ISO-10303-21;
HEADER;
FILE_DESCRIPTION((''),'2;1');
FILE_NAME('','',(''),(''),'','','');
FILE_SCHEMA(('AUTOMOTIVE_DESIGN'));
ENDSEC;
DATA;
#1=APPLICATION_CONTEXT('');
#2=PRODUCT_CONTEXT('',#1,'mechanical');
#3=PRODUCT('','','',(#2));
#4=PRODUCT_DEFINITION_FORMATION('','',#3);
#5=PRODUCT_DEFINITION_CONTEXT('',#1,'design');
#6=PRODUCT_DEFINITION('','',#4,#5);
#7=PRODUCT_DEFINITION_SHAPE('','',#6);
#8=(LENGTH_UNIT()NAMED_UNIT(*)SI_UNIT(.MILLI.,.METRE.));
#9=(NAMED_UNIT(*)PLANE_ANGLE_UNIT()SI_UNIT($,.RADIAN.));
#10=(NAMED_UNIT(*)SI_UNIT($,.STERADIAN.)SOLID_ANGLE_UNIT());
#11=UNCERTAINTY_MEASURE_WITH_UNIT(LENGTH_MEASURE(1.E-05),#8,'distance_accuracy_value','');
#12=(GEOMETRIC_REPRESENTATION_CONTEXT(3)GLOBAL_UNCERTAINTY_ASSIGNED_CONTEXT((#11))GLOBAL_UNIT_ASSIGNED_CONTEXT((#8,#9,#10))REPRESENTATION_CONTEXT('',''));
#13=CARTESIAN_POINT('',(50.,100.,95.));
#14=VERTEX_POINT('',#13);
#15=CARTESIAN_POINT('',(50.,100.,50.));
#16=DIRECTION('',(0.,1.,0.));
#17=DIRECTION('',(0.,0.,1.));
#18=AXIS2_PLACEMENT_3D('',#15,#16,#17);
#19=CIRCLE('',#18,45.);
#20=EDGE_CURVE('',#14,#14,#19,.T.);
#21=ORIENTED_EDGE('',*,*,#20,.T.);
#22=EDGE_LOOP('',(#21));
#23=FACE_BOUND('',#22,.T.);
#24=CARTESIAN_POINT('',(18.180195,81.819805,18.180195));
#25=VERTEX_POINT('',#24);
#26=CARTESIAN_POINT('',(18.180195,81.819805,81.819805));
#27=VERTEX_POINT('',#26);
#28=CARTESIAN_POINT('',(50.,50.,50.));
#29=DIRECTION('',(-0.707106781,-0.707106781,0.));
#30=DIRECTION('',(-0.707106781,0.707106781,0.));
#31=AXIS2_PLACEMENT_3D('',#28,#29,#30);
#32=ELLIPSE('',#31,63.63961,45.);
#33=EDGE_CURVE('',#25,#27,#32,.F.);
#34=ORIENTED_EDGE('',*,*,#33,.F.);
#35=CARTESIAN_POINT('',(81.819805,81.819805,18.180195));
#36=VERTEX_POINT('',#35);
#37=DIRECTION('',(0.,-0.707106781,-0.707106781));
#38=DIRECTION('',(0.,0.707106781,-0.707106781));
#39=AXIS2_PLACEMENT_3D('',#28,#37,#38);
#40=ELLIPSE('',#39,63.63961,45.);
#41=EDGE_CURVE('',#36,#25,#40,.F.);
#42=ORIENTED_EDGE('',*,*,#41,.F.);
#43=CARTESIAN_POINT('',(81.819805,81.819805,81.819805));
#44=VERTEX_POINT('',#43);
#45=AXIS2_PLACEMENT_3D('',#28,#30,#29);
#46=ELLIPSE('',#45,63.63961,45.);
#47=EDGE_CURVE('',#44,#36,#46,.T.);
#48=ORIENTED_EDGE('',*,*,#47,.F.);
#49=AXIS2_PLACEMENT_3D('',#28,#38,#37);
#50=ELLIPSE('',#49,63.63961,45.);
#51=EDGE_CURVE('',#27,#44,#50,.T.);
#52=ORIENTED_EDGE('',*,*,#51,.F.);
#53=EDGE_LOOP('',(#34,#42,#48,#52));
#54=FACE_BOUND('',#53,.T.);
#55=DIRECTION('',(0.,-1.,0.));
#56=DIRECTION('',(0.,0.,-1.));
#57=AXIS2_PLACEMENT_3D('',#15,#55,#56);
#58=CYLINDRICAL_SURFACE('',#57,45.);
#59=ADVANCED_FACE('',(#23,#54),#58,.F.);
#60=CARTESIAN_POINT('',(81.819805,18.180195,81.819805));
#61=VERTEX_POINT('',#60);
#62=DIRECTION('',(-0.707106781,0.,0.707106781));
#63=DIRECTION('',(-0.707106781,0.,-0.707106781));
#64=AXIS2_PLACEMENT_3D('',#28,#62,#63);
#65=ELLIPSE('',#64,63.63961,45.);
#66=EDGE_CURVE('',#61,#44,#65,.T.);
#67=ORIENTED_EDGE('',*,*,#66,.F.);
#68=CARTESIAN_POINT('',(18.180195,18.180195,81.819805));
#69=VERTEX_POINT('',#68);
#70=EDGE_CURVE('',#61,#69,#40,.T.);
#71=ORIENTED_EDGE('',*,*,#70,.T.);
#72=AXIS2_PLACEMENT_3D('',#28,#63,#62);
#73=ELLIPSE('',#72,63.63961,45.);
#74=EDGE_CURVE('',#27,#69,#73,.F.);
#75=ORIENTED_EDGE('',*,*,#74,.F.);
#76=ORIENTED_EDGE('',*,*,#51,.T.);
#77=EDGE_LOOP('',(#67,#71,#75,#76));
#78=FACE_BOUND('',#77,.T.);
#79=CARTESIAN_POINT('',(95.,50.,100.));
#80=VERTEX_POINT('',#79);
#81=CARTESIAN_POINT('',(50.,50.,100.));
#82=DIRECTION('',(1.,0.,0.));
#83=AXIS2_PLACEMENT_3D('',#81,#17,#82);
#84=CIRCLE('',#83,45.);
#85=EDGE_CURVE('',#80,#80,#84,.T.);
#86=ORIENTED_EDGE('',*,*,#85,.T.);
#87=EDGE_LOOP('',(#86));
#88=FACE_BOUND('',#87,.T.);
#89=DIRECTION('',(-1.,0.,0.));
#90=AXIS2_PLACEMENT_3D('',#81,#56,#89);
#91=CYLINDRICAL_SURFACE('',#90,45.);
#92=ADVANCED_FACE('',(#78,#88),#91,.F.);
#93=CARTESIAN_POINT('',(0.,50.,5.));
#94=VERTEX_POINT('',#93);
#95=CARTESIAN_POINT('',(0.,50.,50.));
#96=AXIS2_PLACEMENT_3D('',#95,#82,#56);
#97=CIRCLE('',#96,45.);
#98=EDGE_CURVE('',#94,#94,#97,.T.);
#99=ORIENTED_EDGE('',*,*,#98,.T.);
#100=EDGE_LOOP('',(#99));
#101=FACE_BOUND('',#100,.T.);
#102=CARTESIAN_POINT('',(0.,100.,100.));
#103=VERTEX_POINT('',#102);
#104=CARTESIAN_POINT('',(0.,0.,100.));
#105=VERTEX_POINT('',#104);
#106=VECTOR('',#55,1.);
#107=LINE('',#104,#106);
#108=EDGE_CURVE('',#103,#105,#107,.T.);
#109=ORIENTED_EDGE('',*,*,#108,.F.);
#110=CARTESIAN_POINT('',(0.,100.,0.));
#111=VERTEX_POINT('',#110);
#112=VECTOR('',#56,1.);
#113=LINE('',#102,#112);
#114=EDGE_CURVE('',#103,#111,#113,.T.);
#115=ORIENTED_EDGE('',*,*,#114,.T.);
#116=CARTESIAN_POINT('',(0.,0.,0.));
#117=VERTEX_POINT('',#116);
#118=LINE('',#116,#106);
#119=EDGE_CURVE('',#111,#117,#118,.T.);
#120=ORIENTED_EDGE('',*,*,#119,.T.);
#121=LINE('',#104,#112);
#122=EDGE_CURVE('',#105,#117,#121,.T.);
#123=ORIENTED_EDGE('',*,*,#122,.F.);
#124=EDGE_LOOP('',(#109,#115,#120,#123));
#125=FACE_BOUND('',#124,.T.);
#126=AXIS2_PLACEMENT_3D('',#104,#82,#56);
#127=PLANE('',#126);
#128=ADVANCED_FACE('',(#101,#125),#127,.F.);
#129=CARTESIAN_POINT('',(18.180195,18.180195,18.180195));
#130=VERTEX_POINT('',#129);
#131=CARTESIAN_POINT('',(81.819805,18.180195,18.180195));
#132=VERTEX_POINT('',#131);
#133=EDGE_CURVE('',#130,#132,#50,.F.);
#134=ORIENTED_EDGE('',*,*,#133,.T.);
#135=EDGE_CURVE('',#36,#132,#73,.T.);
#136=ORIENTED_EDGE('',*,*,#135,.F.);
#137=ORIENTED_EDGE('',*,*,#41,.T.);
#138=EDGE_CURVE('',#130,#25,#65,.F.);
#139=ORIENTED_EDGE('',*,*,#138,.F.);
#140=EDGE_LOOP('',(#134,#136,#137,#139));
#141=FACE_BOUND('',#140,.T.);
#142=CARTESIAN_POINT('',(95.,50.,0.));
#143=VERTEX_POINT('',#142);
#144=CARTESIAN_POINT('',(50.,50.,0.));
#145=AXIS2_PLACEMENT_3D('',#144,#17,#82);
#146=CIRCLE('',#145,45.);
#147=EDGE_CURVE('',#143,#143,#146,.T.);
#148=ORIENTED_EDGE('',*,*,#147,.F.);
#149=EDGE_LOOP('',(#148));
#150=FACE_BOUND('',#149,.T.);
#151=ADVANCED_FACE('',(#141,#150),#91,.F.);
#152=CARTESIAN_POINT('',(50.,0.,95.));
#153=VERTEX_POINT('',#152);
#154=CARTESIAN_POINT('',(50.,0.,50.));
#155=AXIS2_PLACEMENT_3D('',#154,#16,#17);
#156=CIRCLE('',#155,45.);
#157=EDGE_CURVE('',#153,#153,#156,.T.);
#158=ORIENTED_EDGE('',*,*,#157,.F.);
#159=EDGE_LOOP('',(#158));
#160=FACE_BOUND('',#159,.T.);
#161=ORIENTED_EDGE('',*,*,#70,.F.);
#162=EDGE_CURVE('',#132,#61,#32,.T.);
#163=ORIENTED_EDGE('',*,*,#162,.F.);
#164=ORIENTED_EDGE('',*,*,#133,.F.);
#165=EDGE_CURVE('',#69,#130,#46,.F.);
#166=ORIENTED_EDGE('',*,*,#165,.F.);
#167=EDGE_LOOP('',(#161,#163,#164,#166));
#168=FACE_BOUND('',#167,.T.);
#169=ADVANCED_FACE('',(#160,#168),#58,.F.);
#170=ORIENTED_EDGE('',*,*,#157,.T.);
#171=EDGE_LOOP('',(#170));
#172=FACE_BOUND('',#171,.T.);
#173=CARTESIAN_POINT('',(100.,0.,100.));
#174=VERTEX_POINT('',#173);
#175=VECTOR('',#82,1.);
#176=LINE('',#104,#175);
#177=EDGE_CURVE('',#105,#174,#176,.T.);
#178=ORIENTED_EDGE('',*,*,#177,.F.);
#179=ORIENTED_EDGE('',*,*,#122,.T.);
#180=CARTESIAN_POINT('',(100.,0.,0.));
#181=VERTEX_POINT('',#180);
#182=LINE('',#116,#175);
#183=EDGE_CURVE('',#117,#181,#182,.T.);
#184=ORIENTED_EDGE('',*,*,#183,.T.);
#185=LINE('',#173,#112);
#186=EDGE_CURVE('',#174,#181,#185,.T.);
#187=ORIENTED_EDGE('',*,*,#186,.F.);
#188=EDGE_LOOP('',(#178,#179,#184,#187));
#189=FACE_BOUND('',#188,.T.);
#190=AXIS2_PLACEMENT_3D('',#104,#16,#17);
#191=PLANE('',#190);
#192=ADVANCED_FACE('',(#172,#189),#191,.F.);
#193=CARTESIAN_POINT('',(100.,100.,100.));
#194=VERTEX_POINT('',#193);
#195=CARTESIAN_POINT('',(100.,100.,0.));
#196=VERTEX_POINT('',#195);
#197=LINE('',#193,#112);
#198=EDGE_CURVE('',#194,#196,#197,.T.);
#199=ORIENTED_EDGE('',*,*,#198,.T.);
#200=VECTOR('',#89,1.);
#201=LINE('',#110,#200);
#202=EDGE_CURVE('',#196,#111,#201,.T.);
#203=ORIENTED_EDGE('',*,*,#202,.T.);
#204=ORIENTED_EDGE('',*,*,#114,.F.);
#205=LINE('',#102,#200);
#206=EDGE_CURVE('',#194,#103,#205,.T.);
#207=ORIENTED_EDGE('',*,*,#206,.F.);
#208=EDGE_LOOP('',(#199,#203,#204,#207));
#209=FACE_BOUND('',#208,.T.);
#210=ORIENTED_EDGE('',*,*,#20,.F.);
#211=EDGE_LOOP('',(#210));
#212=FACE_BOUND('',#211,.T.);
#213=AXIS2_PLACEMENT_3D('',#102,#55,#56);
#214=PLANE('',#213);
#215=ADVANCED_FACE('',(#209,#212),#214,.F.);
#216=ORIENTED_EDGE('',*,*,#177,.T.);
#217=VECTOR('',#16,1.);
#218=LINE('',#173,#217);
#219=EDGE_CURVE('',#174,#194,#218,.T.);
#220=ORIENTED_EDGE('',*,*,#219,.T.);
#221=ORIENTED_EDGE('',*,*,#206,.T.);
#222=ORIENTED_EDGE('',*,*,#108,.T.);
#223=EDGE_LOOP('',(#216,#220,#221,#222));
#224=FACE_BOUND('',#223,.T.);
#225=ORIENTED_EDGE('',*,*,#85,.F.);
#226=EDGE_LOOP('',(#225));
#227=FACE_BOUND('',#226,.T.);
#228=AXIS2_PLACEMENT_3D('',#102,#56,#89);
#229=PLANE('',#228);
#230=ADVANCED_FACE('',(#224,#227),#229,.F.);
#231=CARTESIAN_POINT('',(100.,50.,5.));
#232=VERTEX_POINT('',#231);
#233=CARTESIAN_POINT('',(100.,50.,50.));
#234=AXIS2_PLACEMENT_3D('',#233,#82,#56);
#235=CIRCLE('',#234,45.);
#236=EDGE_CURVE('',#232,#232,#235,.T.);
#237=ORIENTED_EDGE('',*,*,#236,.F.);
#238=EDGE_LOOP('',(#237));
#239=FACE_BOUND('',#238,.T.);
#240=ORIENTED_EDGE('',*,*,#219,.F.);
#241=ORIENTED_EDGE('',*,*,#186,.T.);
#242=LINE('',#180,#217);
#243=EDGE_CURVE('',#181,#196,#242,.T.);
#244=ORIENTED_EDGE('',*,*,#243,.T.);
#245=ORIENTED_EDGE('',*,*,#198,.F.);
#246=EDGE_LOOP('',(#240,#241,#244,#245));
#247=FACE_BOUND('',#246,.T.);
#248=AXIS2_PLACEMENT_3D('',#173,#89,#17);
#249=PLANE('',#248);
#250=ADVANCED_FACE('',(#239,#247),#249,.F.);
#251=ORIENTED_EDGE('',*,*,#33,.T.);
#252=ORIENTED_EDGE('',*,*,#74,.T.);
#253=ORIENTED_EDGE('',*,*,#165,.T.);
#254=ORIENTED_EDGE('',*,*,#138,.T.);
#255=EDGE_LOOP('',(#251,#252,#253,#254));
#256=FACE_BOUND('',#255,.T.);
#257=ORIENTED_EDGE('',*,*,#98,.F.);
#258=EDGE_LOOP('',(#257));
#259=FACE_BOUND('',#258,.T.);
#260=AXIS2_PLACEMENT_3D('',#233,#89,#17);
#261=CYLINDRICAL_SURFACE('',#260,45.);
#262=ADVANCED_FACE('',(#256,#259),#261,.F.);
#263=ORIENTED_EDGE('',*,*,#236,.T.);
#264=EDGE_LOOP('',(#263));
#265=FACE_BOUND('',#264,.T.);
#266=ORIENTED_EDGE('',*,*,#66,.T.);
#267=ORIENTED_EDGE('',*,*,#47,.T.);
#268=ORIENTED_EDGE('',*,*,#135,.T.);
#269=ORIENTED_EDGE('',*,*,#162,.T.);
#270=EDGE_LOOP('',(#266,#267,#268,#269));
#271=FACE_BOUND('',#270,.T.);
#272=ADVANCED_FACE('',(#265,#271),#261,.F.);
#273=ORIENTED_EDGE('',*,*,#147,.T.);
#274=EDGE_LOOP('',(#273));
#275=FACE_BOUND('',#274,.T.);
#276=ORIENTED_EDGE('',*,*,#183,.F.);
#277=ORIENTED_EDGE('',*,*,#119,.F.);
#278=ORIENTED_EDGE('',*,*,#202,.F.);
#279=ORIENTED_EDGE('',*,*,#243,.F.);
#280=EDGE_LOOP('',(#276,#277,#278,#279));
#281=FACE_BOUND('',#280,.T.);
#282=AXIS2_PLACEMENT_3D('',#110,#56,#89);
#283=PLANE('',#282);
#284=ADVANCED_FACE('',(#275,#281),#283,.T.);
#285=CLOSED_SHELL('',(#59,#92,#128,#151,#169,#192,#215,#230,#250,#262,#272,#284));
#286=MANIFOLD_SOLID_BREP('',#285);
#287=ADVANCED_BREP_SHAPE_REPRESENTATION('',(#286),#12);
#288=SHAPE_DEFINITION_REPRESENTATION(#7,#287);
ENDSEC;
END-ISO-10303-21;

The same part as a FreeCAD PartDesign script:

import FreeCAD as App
import Part
import Sketcher
Q = App.Units.Quantity

doc = App.newDocument("Part")
params = doc.addObject("Spreadsheet::Sheet", "Params")
for row, (alias, value) in enumerate([
    ("sketch1_width", "100 mm"),
    ("pad1_length", "100 mm"),
    ("sketch2_diameter", "90 mm"),
    ("sketch3_diameter", "90 mm"),
    ("sketch4_diameter", "90 mm"),
], start=1):
    params.set(f"A{row}", alias)
    params.set(f"B{row}", "=" + value)
    params.setAlias(f"B{row}", alias)

body = doc.addObject("PartDesign::Body", "Body")

sketch1 = body.newObject("Sketcher::SketchObject", "Sketch")
sketch1.AttachmentSupport = (doc.getObject("XY_Plane"), [""])
sketch1.MapMode = "FlatFace"
sketch1.addGeometry([
    Part.LineSegment(App.Vector(0, 100, 0), App.Vector(0, 0, 0)),
    Part.LineSegment(App.Vector(0, 0, 0), App.Vector(100, 0, 0)),
    Part.LineSegment(App.Vector(100, 0, 0), App.Vector(100, 100, 0)),
    Part.LineSegment(App.Vector(100, 100, 0), App.Vector(0, 100, 0)),
], False)
sketch1.addConstraint([
    Sketcher.Constraint("Coincident", 0, 2, 1, 1),
    Sketcher.Constraint("Coincident", 1, 2, 2, 1),
    Sketcher.Constraint("Coincident", 2, 2, 3, 1),
    Sketcher.Constraint("Coincident", 3, 2, 0, 1),
    Sketcher.Constraint("Vertical", 0),
    Sketcher.Constraint("Horizontal", 1),
    Sketcher.Constraint("Vertical", 2),
    Sketcher.Constraint("Horizontal", 3),
    Sketcher.Constraint("Coincident", 0, 2, -1, 1),
    Sketcher.Constraint("Equal", 3, 0),
    Sketcher.Constraint("DistanceX", 1, 1, 1, 2, Q("100 mm")),
])
sketch1.setExpression("Constraints[10]", "Params.sketch1_width")
pad1 = body.newObject("PartDesign::Pad", "Pad")
pad1.Profile = sketch1
pad1.setExpression("Length", "Params.pad1_length")

sketch2 = body.newObject("Sketcher::SketchObject", "Sketch001")
sketch2.AttachmentSupport = (doc.getObject("YZ_Plane"), [""])
sketch2.MapMode = "FlatFace"
sketch2.addGeometry(Part.Circle(App.Vector(50, 50, 0), App.Vector(0, 0, 1), 45), False)
sketch2.addConstraint([
    Sketcher.Constraint("Diameter", 0, Q("90 mm")),
    Sketcher.Constraint("DistanceX", -1, 1, 0, 3, Q("50 mm")),
    Sketcher.Constraint("DistanceY", -1, 1, 0, 3, Q("50 mm")),
])
sketch2.setExpression("Constraints[0]", "Params.sketch2_diameter")
pocket1 = body.newObject("PartDesign::Pocket", "Pocket")
pocket1.Profile = sketch2
pocket1.Type = "ThroughAll"
pocket1.Reversed = True

sketch3 = body.newObject("Sketcher::SketchObject", "Sketch002")
sketch3.AttachmentSupport = (doc.getObject("XY_Plane"), [""])
sketch3.MapMode = "FlatFace"
sketch3.addGeometry(Part.Circle(App.Vector(50, 50, 0), App.Vector(0, 0, 1), 45), False)
sketch3.addConstraint([
    Sketcher.Constraint("Diameter", 0, Q("90 mm")),
    Sketcher.Constraint("DistanceX", -1, 1, 0, 3, Q("50 mm")),
    Sketcher.Constraint("DistanceY", -1, 1, 0, 3, Q("50 mm")),
])
sketch3.setExpression("Constraints[0]", "Params.sketch3_diameter")
pocket2 = body.newObject("PartDesign::Pocket", "Pocket001")
pocket2.Profile = sketch3
pocket2.Type = "ThroughAll"
pocket2.Reversed = True

sketch4 = body.newObject("Sketcher::SketchObject", "Sketch003")
sketch4.AttachmentSupport = (doc.getObject("XZ_Plane"), [""])
sketch4.MapMode = "FlatFace"
sketch4.addGeometry(Part.Circle(App.Vector(50, 50, 0), App.Vector(0, 0, 1), 45), False)
sketch4.addConstraint([
    Sketcher.Constraint("Diameter", 0, Q("90 mm")),
    Sketcher.Constraint("DistanceX", -1, 1, 0, 3, Q("50 mm")),
    Sketcher.Constraint("DistanceY", -1, 1, 0, 3, Q("50 mm")),
])
sketch4.setExpression("Constraints[0]", "Params.sketch4_diameter")
pocket3 = body.newObject("PartDesign::Pocket", "Pocket002")
pocket3.Profile = sketch4
pocket3.Type = "ThroughAll"

doc.recompute()
